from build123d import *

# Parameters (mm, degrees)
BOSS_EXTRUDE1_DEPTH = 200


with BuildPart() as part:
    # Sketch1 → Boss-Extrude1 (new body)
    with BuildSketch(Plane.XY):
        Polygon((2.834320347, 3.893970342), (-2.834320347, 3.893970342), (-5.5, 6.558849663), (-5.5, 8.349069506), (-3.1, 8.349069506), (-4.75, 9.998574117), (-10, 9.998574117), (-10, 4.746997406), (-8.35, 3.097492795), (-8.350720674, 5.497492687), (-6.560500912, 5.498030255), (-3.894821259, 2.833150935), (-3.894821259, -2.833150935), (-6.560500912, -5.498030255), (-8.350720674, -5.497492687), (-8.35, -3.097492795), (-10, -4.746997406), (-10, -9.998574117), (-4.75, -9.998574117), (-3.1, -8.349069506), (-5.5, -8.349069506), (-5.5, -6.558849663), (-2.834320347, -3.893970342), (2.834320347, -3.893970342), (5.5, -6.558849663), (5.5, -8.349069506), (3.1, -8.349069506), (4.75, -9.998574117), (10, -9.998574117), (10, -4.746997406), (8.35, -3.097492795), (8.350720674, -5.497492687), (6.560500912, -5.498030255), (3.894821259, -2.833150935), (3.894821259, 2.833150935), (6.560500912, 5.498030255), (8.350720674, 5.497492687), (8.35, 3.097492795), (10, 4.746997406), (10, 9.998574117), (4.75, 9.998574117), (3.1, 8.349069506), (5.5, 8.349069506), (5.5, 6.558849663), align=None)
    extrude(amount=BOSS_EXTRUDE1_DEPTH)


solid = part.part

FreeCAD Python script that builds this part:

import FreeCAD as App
import Part
import Sketcher

V = App.Vector
Q = App.Units.Quantity

doc = App.newDocument("Part")
body = doc.addObject("PartDesign::Body", "Body")

sketch1 = doc.addObject("Sketcher::SketchObject", "Sketch")
body.addObject(sketch1)
sketch1.AttachmentSupport = (doc.XY_Plane, [""])
sketch1.MapMode = "FlatFace"
sketch1.addGeometry(Part.LineSegment(V(2.8, 3.9, 0), V(-2.8, 3.9, 0)), False)
sketch1.addGeometry(Part.LineSegment(V(-2.8, 3.9, 0), V(-5.5, 6.6, 0)), False)
sketch1.addGeometry(Part.LineSegment(V(-5.5, 6.6, 0), V(-5.5, 8.3, 0)), False)
sketch1.addGeometry(Part.LineSegment(V(-5.5, 8.3, 0), V(-3.1, 8.3, 0)), False)
sketch1.addGeometry(Part.LineSegment(V(-3.1, 8.3, 0), V(-4.8, 10, 0)), False)
sketch1.addGeometry(Part.LineSegment(V(-4.8, 10, 0), V(-10, 10, 0)), False)
sketch1.addGeometry(Part.LineSegment(V(-10, 10, 0), V(-10, 4.7, 0)), False)
sketch1.addGeometry(Part.LineSegment(V(-10, 4.7, 0), V(-8.3, 3.1, 0)), False)
sketch1.addGeometry(Part.LineSegment(V(-8.3, 3.1, 0), V(-8.4, 5.5, 0)), False)
sketch1.addGeometry(Part.LineSegment(V(-8.4, 5.5, 0), V(-6.6, 5.5, 0)), False)
sketch1.addGeometry(Part.LineSegment(V(-6.6, 5.5, 0), V(-3.9, 2.8, 0)), False)
sketch1.addGeometry(Part.LineSegment(V(-3.9, 2.8, 0), V(-3.9, -2.8, 0)), False)
sketch1.addGeometry(Part.LineSegment(V(-3.9, -2.8, 0), V(-6.6, -5.5, 0)), False)
sketch1.addGeometry(Part.LineSegment(V(-6.6, -5.5, 0), V(-8.4, -5.5, 0)), False)
sketch1.addGeometry(Part.LineSegment(V(-8.4, -5.5, 0), V(-8.3, -3.1, 0)), False)
sketch1.addGeometry(Part.LineSegment(V(-8.3, -3.1, 0), V(-10, -4.7, 0)), False)
sketch1.addGeometry(Part.LineSegment(V(-10, -4.7, 0), V(-10, -10, 0)), False)
sketch1.addGeometry(Part.LineSegment(V(-10, -10, 0), V(-4.8, -10, 0)), False)
sketch1.addGeometry(Part.LineSegment(V(-4.8, -10, 0), V(-3.1, -8.3, 0)), False)
sketch1.addGeometry(Part.LineSegment(V(-3.1, -8.3, 0), V(-5.5, -8.3, 0)), False)
sketch1.addGeometry(Part.LineSegment(V(-5.5, -8.3, 0), V(-5.5, -6.6, 0)), False)
sketch1.addGeometry(Part.LineSegment(V(-5.5, -6.6, 0), V(-2.8, -3.9, 0)), False)
sketch1.addGeometry(Part.LineSegment(V(-2.8, -3.9, 0), V(2.8, -3.9, 0)), False)
sketch1.addGeometry(Part.LineSegment(V(2.8, -3.9, 0), V(5.5, -6.6, 0)), False)
sketch1.addGeometry(Part.LineSegment(V(5.5, -6.6, 0), V(5.5, -8.3, 0)), False)
sketch1.addGeometry(Part.LineSegment(V(5.5, -8.3, 0), V(3.1, -8.3, 0)), False)
sketch1.addGeometry(Part.LineSegment(V(3.1, -8.3, 0), V(4.8, -10, 0)), False)
sketch1.addGeometry(Part.LineSegment(V(4.8, -10, 0), V(10, -10, 0)), False)
sketch1.addGeometry(Part.LineSegment(V(10, -10, 0), V(10, -4.7, 0)), False)
sketch1.addGeometry(Part.LineSegment(V(10, -4.7, 0), V(8.3, -3.1, 0)), False)
sketch1.addGeometry(Part.LineSegment(V(8.3, -3.1, 0), V(8.4, -5.5, 0)), False)
sketch1.addGeometry(Part.LineSegment(V(8.4, -5.5, 0), V(6.6, -5.5, 0)), False)
sketch1.addGeometry(Part.LineSegment(V(6.6, -5.5, 0), V(3.9, -2.8, 0)), False)
sketch1.addGeometry(Part.LineSegment(V(3.9, -2.8, 0), V(3.9, 2.8, 0)), False)
sketch1.addGeometry(Part.LineSegment(V(3.9, 2.8, 0), V(6.6, 5.5, 0)), False)
sketch1.addGeometry(Part.LineSegment(V(6.6, 5.5, 0), V(8.4, 5.5, 0)), False)
sketch1.addGeometry(Part.LineSegment(V(8.4, 5.5, 0), V(8.3, 3.1, 0)), False)
sketch1.addGeometry(Part.LineSegment(V(8.3, 3.1, 0), V(10, 4.7, 0)), False)
sketch1.addGeometry(Part.LineSegment(V(10, 4.7, 0), V(10, 10, 0)), False)
sketch1.addGeometry(Part.LineSegment(V(10, 10, 0), V(4.8, 10, 0)), False)
sketch1.addGeometry(Part.LineSegment(V(4.8, 10, 0), V(3.1, 8.3, 0)), False)
sketch1.addGeometry(Part.LineSegment(V(3.1, 8.3, 0), V(5.5, 8.3, 0)), False)
sketch1.addGeometry(Part.LineSegment(V(5.5, 8.3, 0), V(5.5, 6.6, 0)), False)
sketch1.addGeometry(Part.LineSegment(V(5.5, 6.6, 0), V(2.8, 3.9, 0)), False)
sketch1.addConstraint(Sketcher.Constraint("Coincident", 0, 2, 1, 1))
sketch1.addConstraint(Sketcher.Constraint("Coincident", 1, 2, 2, 1))
sketch1.addConstraint(Sketcher.Constraint("Coincident", 2, 2, 3, 1))
sketch1.addConstraint(Sketcher.Constraint("Coincident", 3, 2, 4, 1))
sketch1.addConstraint(Sketcher.Constraint("Coincident", 4, 2, 5, 1))
sketch1.addConstraint(Sketcher.Constraint("Coincident", 5, 2, 6, 1))
sketch1.addConstraint(Sketcher.Constraint("Coincident", 6, 2, 7, 1))
sketch1.addConstraint(Sketcher.Constraint("Coincident", 7, 2, 8, 1))
sketch1.addConstraint(Sketcher.Constraint("Coincident", 8, 2, 9, 1))
sketch1.addConstraint(Sketcher.Constraint("Coincident", 9, 2, 10, 1))
sketch1.addConstraint(Sketcher.Constraint("Coincident", 10, 2, 11, 1))
sketch1.addConstraint(Sketcher.Constraint("Coincident", 11, 2, 12, 1))
sketch1.addConstraint(Sketcher.Constraint("Coincident", 12, 2, 13, 1))
sketch1.addConstraint(Sketcher.Constraint("Coincident", 13, 2, 14, 1))
sketch1.addConstraint(Sketcher.Constraint("Coincident", 14, 2, 15, 1))
sketch1.addConstraint(Sketcher.Constraint("Coincident", 15, 2, 16, 1))
sketch1.addConstraint(Sketcher.Constraint("Coincident", 16, 2, 17, 1))
sketch1.addConstraint(Sketcher.Constraint("Coincident", 17, 2, 18, 1))
sketch1.addConstraint(Sketcher.Constraint("Coincident", 18, 2, 19, 1))
sketch1.addConstraint(Sketcher.Constraint("Coincident", 19, 2, 20, 1))
sketch1.addConstraint(Sketcher.Constraint("Coincident", 20, 2, 21, 1))
sketch1.addConstraint(Sketcher.Constraint("Coincident", 21, 2, 22, 1))
sketch1.addConstraint(Sketcher.Constraint("Coincident", 22, 2, 23, 1))
sketch1.addConstraint(Sketcher.Constraint("Coincident", 23, 2, 24, 1))
sketch1.addConstraint(Sketcher.Constraint("Coincident", 24, 2, 25, 1))
sketch1.addConstraint(Sketcher.Constraint("Coincident", 25, 2, 26, 1))
sketch1.addConstraint(Sketcher.Constraint("Coincident", 26, 2, 27, 1))
sketch1.addConstraint(Sketcher.Constraint("Coincident", 27, 2, 28, 1))
sketch1.addConstraint(Sketcher.Constraint("Coincident", 28, 2, 29, 1))
sketch1.addConstraint(Sketcher.Constraint("Coincident", 29, 2, 30, 1))
sketch1.addConstraint(Sketcher.Constraint("Coincident", 30, 2, 31, 1))
sketch1.addConstraint(Sketcher.Constraint("Coincident", 31, 2, 32, 1))
sketch1.addConstraint(Sketcher.Constraint("Coincident", 32, 2, 33, 1))
sketch1.addConstraint(Sketcher.Constraint("Coincident", 33, 2, 34, 1))
sketch1.addConstraint(Sketcher.Constraint("Coincident", 34, 2, 35, 1))
sketch1.addConstraint(Sketcher.Constraint("Coincident", 35, 2, 36, 1))
sketch1.addConstraint(Sketcher.Constraint("Coincident", 36, 2, 37, 1))
sketch1.addConstraint(Sketcher.Constraint("Coincident", 37, 2, 38, 1))
sketch1.addConstraint(Sketcher.Constraint("Coincident", 38, 2, 39, 1))
sketch1.addConstraint(Sketcher.Constraint("Coincident", 39, 2, 40, 1))
sketch1.addConstraint(Sketcher.Constraint("Coincident", 40, 2, 41, 1))
sketch1.addConstraint(Sketcher.Constraint("Coincident", 41, 2, 42, 1))
sketch1.addConstraint(Sketcher.Constraint("Coincident", 42, 2, 43, 1))
sketch1.addConstraint(Sketcher.Constraint("Coincident", 43, 2, 0, 1))
sketch1.addConstraint(Sketcher.Constraint("Horizontal", 0))
sketch1.addConstraint(Sketcher.Constraint("Vertical", 2))
sketch1.addConstraint(Sketcher.Constraint("Horizontal", 3))
sketch1.addConstraint(Sketcher.Constraint("Horizontal", 5))
sketch1.addConstraint(Sketcher.Constraint("Vertical", 6))
sketch1.addConstraint(Sketcher.Constraint("Vertical", 11))
sketch1.addConstraint(Sketcher.Constraint("Vertical", 16))
sketch1.addConstraint(Sketcher.Constraint("Horizontal", 17))
sketch1.addConstraint(Sketcher.Constraint("Horizontal", 19))
sketch1.addConstraint(Sketcher.Constraint("Vertical", 20))
sketch1.addConstraint(Sketcher.Constraint("Horizontal", 22))
sketch1.addConstraint(Sketcher.Constraint("Vertical", 24))
sketch1.addConstraint(Sketcher.Constraint("Horizontal", 25))
sketch1.addConstraint(Sketcher.Constraint("Horizontal", 27))
sketch1.addConstraint(Sketcher.Constraint("Vertical", 28))
sketch1.addConstraint(Sketcher.Constraint("Vertical", 33))
sketch1.addConstraint(Sketcher.Constraint("Vertical", 38))
sketch1.addConstraint(Sketcher.Constraint("Horizontal", 39))
sketch1.addConstraint(Sketcher.Constraint("Horizontal", 41))
sketch1.addConstraint(Sketcher.Constraint("Vertical", 42))
sketch1.addConstraint(Sketcher.Constraint("Symmetric", 0, 2, 22, 2, -1, 1))
sketch1.addConstraint(Sketcher.Constraint("Symmetric", 1, 2, 23, 2, -1, 1))
sketch1.addConstraint(Sketcher.Constraint("Symmetric", 3, 2, 25, 2, -1, 1))
sketch1.addConstraint(Sketcher.Constraint("Symmetric", 4, 2, 26, 2, -1, 1))
sketch1.addConstraint(Sketcher.Constraint("Symmetric", 6, 2, 28, 2, -1, 1))
sketch1.addConstraint(Sketcher.Constraint("Symmetric", 7, 2, 29, 2, -1, 1))
sketch1.addConstraint(Sketcher.Constraint("Symmetric", 8, 2, 30, 2, -1, 1))
sketch1.addConstraint(Sketcher.Constraint("Symmetric", 9, 2, 31, 2, -1, 1))
sketch1.addConstraint(Sketcher.Constraint("Symmetric", 10, 2, 32, 2, -1, 1))
sketch1.addConstraint(Sketcher.Constraint("Symmetric", 12, 2, 34, 2, -1, 1))
sketch1.addConstraint(Sketcher.Constraint("Symmetric", 13, 2, 35, 2, -1, 1))
sketch1.addConstraint(Sketcher.Constraint("Symmetric", 14, 2, 36, 2, -1, 1))
sketch1.addConstraint(Sketcher.Constraint("Symmetric", 15, 2, 37, 2, -1, 1))
sketch1.addConstraint(Sketcher.Constraint("Symmetric", 17, 2, 39, 2, -1, 1))
sketch1.addConstraint(Sketcher.Constraint("Symmetric", 18, 2, 40, 2, -1, 1))
sketch1.addConstraint(Sketcher.Constraint("Symmetric", 20, 2, 42, 2, -1, 1))
sketch1.addConstraint(Sketcher.Constraint("Symmetric", 20, 2, 23, 2, -2))
sketch1.addConstraint(Sketcher.Constraint("Symmetric", 18, 2, 25, 2, -2))
sketch1.addConstraint(Sketcher.Constraint("Symmetric", 17, 2, 26, 2, -2))
sketch1.addConstraint(Sketcher.Constraint("Symmetric", 15, 2, 28, 2, -2))
sketch1.addConstraint(Sketcher.Constraint("Symmetric", 14, 2, 29, 2, -2))
sketch1.addConstraint(Sketcher.Constraint("Symmetric", 13, 2, 30, 2, -2))
sketch1.addConstraint(Sketcher.Constraint("Symmetric", 12, 2, 31, 2, -2))
sketch1.addConstraint(Sketcher.Constraint("Parallel", 1, 4))
sketch1.addConstraint(Sketcher.Constraint("Parallel", 4, 7))
sketch1.addConstraint(Sketcher.Constraint("Perpendicular", 8, 9))
sketch1.addConstraint(Sketcher.Constraint("Parallel", 7, 10))
sketch1.addConstraint(Sketcher.Constraint("Parallel", 12, 15))
sketch1.addConstraint(Sketcher.Constraint("Parallel", 18, 21))
sketch1.addConstraint(Sketcher.Constraint("Parallel", 21, 34))
sketch1.addConstraint(Sketcher.Constraint("Parallel", 40, 43))
sketch1.addConstraint(Sketcher.Constraint("Equal", 4, 7))
sketch1.addConstraint(Sketcher.Constraint("Equal", 1, 10))
sketch1.addConstraint(Sketcher.Constraint("DistanceX", 3, 1, 3, 2, Q("2.4 mm")))
sketch1.addConstraint(Sketcher.Constraint("DistanceX", 5, 2, -1, 1, Q("10 mm")))
sketch1.addConstraint(Sketcher.Constraint("Distance", 8, Q("2.4 mm")))
sketch1.addConstraint(Sketcher.Constraint("DistanceX", 5, 2, 5, 1, Q("5.25 mm")))
sketch1.addConstraint(Sketcher.Constraint("DistanceX", 1, 2, -1, 1, Q("5.5 mm")))
sketch1.addConstraint(Sketcher.Constraint("DistanceY", 11, 2, 11, 1, Q("5.666302 mm")))
sketch1.addConstraint(Sketcher.Constraint("DistanceY", 12, 2, 0, 2, Q("9.392001 mm")))
sketch1.addConstraint(Sketcher.Constraint("DistanceX", 0, 2, 0, 1, Q("5.668641 mm")))
sketch1.addConstraint(Sketcher.Constraint("DistanceY", 2, 1, 2, 2, Q("1.79022 mm")))
sketch1.addConstraint(Sketcher.Constraint("DistanceX", 9, 2, -1, 1, Q("6.560501 mm")))
sketch1.addConstraint(Sketcher.Constraint("DistanceY", 0, 2, 2, 2, Q("4.455099 mm")))
sketch1.addConstraint(Sketcher.Constraint("DistanceX", 8, 2, 10, 2, Q("4.455899 mm")))
pad1 = doc.addObject("PartDesign::Pad", "Pad")
body.addObject(pad1)
pad1.Profile = sketch1
pad1.Length = 200

doc.recompute()
